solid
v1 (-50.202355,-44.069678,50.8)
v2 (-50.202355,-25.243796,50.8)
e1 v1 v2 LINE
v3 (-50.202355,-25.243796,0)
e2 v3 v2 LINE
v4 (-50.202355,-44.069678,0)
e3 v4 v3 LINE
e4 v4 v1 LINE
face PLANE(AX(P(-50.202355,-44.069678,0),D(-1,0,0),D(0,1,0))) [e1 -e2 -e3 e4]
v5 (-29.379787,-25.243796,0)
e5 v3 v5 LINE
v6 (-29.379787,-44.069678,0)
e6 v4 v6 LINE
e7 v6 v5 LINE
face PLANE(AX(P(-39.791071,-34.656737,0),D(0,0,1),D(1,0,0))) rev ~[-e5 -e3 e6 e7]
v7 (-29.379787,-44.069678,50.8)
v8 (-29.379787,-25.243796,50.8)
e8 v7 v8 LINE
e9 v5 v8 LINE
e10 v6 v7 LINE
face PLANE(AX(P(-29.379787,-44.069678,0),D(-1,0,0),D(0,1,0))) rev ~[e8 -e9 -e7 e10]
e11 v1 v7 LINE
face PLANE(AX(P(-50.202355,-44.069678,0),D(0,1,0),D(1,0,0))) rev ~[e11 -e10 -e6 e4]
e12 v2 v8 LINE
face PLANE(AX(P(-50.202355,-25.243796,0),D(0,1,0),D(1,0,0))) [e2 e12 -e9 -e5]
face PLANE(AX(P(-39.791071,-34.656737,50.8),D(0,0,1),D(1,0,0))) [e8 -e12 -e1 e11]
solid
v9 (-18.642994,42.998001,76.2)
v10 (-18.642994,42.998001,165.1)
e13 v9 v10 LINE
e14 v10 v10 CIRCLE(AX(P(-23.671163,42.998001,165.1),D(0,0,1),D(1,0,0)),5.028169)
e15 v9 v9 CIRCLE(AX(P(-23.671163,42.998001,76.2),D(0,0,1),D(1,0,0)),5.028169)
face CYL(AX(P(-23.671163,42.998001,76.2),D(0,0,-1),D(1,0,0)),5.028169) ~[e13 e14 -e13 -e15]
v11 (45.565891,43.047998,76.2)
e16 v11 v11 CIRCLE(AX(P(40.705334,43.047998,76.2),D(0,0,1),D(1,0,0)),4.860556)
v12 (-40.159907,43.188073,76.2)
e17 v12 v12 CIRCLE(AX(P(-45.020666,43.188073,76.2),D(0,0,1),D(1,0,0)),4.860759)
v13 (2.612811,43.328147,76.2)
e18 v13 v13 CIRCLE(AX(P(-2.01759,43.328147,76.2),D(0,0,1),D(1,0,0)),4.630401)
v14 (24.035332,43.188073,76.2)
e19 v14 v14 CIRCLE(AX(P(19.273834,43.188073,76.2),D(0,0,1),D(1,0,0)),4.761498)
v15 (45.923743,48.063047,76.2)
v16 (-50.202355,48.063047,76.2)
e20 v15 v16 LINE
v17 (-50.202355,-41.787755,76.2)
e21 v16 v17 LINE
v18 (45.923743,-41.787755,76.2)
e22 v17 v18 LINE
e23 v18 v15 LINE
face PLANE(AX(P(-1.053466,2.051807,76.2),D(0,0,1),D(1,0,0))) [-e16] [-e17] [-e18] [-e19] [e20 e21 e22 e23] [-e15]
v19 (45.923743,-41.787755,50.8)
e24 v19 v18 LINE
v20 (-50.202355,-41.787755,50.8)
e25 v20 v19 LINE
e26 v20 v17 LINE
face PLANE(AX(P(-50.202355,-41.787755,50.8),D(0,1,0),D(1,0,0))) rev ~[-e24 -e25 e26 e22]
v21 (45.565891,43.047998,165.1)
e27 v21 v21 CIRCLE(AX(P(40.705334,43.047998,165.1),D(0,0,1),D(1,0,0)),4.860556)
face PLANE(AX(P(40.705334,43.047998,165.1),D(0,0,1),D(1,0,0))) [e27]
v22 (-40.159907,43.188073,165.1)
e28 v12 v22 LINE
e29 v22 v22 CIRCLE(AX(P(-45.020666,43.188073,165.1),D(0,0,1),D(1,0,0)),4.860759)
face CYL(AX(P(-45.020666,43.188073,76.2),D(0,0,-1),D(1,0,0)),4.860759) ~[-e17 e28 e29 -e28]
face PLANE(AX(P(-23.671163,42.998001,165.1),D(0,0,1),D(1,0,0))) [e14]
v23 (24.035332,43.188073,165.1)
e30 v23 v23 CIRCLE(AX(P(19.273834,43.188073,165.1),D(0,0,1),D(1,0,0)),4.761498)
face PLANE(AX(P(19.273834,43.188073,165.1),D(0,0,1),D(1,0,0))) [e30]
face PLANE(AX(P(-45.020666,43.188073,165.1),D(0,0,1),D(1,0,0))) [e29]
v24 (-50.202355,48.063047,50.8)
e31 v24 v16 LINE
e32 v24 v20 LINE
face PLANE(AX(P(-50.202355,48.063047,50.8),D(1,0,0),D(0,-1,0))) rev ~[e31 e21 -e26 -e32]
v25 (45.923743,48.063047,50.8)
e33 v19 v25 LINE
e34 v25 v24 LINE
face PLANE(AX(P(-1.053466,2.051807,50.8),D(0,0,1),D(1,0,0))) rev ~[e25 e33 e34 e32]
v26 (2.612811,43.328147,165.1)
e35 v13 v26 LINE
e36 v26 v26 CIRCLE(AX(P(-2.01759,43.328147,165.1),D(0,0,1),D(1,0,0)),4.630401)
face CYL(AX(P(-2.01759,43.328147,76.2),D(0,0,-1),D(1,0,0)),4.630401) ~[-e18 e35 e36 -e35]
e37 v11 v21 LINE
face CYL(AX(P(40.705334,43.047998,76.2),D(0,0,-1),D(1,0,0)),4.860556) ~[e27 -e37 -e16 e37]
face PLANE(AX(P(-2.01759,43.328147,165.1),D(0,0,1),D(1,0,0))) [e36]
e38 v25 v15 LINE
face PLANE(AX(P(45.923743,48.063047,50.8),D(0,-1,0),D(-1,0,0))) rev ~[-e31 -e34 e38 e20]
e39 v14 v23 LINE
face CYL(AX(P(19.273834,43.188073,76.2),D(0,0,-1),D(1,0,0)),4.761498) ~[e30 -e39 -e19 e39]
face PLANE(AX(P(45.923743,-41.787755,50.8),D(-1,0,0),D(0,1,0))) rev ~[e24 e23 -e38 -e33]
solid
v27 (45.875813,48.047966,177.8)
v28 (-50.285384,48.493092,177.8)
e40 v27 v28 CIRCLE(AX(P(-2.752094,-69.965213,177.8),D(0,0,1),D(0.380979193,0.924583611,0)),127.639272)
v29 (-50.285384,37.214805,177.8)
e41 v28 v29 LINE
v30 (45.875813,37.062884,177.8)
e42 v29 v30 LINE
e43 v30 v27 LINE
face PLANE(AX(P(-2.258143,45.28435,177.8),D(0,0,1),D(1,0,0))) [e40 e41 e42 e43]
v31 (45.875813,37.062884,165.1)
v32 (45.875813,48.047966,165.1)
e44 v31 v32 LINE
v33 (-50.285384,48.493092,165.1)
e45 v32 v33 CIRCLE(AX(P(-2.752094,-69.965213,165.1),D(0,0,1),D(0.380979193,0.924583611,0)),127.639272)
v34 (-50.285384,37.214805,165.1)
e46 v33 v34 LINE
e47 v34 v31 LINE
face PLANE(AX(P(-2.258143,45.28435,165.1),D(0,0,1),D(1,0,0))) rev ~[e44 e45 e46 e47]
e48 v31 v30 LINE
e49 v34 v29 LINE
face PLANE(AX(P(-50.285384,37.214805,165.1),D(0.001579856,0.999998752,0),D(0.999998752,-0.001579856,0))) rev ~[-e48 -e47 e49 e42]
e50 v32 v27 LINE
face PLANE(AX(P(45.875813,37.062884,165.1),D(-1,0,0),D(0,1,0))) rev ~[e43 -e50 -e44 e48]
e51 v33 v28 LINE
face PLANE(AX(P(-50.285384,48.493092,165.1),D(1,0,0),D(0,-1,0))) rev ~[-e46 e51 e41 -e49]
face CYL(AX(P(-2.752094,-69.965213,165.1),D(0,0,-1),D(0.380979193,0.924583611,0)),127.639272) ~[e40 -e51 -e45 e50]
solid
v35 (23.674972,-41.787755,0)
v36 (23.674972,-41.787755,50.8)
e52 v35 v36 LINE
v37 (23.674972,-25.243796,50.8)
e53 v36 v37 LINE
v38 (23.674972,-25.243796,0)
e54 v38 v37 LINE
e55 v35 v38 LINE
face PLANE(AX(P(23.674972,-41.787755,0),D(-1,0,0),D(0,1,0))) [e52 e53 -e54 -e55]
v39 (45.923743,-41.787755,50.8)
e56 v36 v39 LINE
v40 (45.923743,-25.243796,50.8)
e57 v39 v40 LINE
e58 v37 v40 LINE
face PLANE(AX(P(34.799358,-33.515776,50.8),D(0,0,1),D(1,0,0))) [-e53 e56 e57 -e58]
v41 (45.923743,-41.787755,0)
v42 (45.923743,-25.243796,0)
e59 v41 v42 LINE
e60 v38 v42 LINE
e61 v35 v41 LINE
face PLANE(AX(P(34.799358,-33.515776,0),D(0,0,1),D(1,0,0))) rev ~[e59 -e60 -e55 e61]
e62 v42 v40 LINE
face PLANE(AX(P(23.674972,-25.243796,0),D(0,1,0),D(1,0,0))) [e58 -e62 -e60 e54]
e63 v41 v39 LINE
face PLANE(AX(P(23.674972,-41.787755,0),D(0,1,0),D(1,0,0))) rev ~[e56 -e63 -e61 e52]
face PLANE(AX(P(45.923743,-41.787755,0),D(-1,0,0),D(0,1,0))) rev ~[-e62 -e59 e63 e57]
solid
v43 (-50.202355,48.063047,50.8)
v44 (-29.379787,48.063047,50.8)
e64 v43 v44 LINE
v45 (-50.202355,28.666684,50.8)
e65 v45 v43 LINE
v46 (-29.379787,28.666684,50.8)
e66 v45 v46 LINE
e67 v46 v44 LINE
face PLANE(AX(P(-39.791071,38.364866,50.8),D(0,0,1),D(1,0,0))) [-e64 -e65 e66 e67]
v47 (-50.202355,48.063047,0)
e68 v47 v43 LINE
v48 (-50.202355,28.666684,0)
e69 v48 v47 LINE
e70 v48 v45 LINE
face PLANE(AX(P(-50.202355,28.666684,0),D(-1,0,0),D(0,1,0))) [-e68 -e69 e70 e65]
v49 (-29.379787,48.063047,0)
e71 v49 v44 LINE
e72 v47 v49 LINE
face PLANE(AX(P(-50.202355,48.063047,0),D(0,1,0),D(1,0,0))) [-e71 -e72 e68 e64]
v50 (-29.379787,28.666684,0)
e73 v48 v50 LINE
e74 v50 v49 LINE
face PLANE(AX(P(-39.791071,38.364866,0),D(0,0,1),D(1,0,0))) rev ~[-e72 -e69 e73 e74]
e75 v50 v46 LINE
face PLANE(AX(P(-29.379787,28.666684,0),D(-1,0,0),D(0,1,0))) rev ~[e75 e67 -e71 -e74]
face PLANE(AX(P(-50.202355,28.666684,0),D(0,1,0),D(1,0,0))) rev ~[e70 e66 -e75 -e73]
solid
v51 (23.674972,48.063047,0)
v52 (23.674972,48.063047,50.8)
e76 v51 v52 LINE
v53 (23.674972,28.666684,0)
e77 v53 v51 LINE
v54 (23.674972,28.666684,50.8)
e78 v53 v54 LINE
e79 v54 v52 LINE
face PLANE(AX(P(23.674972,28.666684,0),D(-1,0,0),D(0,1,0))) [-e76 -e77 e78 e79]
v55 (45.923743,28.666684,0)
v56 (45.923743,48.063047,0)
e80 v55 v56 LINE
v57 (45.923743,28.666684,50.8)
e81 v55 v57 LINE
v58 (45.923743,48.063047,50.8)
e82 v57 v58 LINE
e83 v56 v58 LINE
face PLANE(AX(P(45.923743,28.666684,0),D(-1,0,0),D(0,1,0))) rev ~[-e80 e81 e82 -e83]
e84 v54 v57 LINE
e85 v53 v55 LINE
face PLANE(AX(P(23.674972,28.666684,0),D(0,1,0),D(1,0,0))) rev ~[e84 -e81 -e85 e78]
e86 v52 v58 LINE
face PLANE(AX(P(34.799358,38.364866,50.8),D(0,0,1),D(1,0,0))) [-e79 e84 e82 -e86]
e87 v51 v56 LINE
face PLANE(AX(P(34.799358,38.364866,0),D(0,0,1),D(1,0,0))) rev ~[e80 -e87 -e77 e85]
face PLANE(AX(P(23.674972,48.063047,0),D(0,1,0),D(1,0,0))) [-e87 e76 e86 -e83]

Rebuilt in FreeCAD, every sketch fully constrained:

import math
import FreeCAD as App
import Part
import Sketcher
from FreeCAD import Vector
Q = App.Units.Quantity


def add_polygon(sketch, points):
    """Adds a closed chain of lines whose ends are joined by coincident constraints."""
    first, n = sketch.GeometryCount, len(points)
    for a, b in zip(points, points[1:] + points[:1]):
        sketch.addGeometry(Part.LineSegment(App.Vector(*a, 0), App.Vector(*b, 0)), False)
    for i in range(n):
        sketch.addConstraint(Sketcher.Constraint("Coincident", first + i, 2, first + (i + 1) % n, 1))

doc = App.newDocument("Part")
body = doc.addObject("PartDesign::Body", "Body")

# Sketch on XY plane
sketch1 = body.newObject("Sketcher::SketchObject", "Sketch")
sketch1.AttachmentSupport = (doc.getObject("XY_Plane"), [""])
sketch1.MapMode = "FlatFace"
add_polygon(sketch1, [(-50, 48), (-50, 29), (-29, 29), (-29, 48)])  # lines 0-3
sketch1.addConstraint([
    Sketcher.Constraint("Vertical", 0),
    Sketcher.Constraint("Horizontal", 1),
    Sketcher.Constraint("Vertical", 2),
    Sketcher.Constraint("Horizontal", 3),
    Sketcher.Constraint("DistanceX", 1, 1, 1, 2, 20.822568),
    Sketcher.Constraint("DistanceY", 0, 2, 0, 1, 19.396363),
    Sketcher.Constraint("DistanceX", 0, 2, -1, 1, 50.202355),
    Sketcher.Constraint("DistanceY", -1, 1, 0, 2, 28.666684),
])
pad1 = body.newObject("PartDesign::Pad", "Pad")
pad1.Profile = sketch1
pad1.Length = Q("2 in")
body2 = doc.addObject("PartDesign::Body", "Body001")

# Sketch on XY plane
sketch2 = body2.newObject("Sketcher::SketchObject", "Sketch001")
sketch2.AttachmentSupport = (doc.getObject("XY_Plane001"), [""])
sketch2.MapMode = "FlatFace"
add_polygon(sketch2, [(24, 48), (24, 29), (46, 29), (46, 48)])  # lines 0-3
sketch2.addConstraint([
    Sketcher.Constraint("Vertical", 0),
    Sketcher.Constraint("Horizontal", 1),
    Sketcher.Constraint("Vertical", 2),
    Sketcher.Constraint("Horizontal", 3),
    Sketcher.Constraint("DistanceX", 1, 1, 1, 2, 22.248771),
    Sketcher.Constraint("DistanceY", 0, 2, 0, 1, 19.396363),
    Sketcher.Constraint("DistanceX", -1, 1, 0, 2, 23.674972),
    Sketcher.Constraint("DistanceY", -1, 1, 0, 2, 28.666684),
])
pad2 = body2.newObject("PartDesign::Pad", "Pad001")
pad2.Profile = sketch2
pad2.Length = Q("2 in")
body3 = doc.addObject("PartDesign::Body", "Body002")

# Sketch on XY plane
sketch3 = body3.newObject("Sketcher::SketchObject", "Sketch002")
sketch3.AttachmentSupport = (doc.getObject("XY_Plane002"), [""])
sketch3.MapMode = "FlatFace"
add_polygon(sketch3, [(24, -25), (24, -42), (46, -42), (46, -25)])  # lines 0-3
sketch3.addConstraint([
    Sketcher.Constraint("Vertical", 0),
    Sketcher.Constraint("Horizontal", 1),
    Sketcher.Constraint("Vertical", 2),
    Sketcher.Constraint("Horizontal", 3),
    Sketcher.Constraint("DistanceX", 1, 1, 1, 2, 22.248771),
    Sketcher.Constraint("DistanceY", 0, 2, 0, 1, 16.543958),
    Sketcher.Constraint("DistanceX", -1, 1, 0, 2, 23.674972),
    Sketcher.Constraint("DistanceY", 0, 2, -1, 1, 41.787755),
])
pad3 = body3.newObject("PartDesign::Pad", "Pad002")
pad3.Profile = sketch3
pad3.Length = Q("2 in")
body4 = doc.addObject("PartDesign::Body", "Body003")

# Sketch on XY plane
sketch4 = body4.newObject("Sketcher::SketchObject", "Sketch003")
sketch4.AttachmentSupport = (doc.getObject("XY_Plane003"), [""])
sketch4.MapMode = "FlatFace"
add_polygon(sketch4, [(-50, -25), (-50, -44), (-29, -44), (-29, -25)])  # lines 0-3
sketch4.addConstraint([
    Sketcher.Constraint("Vertical", 0),
    Sketcher.Constraint("Horizontal", 1),
    Sketcher.Constraint("Vertical", 2),
    Sketcher.Constraint("Horizontal", 3),
    Sketcher.Constraint("DistanceY", 0, 2, 0, 1, 18.825881),
    Sketcher.Constraint("DistanceX", 1, 1, 1, 2, 20.822568),
    Sketcher.Constraint("DistanceX", 0, 2, -1, 1, 50.202355),
    Sketcher.Constraint("DistanceY", 0, 2, -1, 1, 44.069678),
])
pad4 = body4.newObject("PartDesign::Pad", "Pad003")
pad4.Profile = sketch4
pad4.Length = Q("2 in")
body5 = doc.addObject("PartDesign::Body", "Body004")

# Sketch on XY plane
sketch5 = body5.newObject("Sketcher::SketchObject", "Sketch004")
sketch5.AttachmentSupport = (doc.getObject("XY_Plane004"), [""])
sketch5.MapMode = "FlatFace"
sketch5.AttachmentOffset = App.Placement(Vector(0, 0, 2 * 25.4), App.Rotation())
add_polygon(sketch5, [(46, 48), (-50, 48), (-50, -42), (46, -42)])  # lines 0-3
sketch5.addConstraint([
    Sketcher.Constraint("Horizontal", 0),
    Sketcher.Constraint("Vertical", 1),
    Sketcher.Constraint("Horizontal", 2),
    Sketcher.Constraint("Vertical", 3),
    Sketcher.Constraint("DistanceX", 0, 2, 0, 1, 96.126098),
    Sketcher.Constraint("DistanceY", 1, 2, 1, 1, 89.850802),
    Sketcher.Constraint("DistanceX", 0, 2, -1, 1, 50.202355),
    Sketcher.Constraint("DistanceY", -1, 1, 0, 2, 48.063047),
])
pad5 = body5.newObject("PartDesign::Pad", "Pad004")
pad5.Profile = sketch5
pad5.Length = Q("1 in")

# Sketch on XY plane
sketch6 = body5.newObject("Sketcher::SketchObject", "Sketch005")
sketch6.AttachmentSupport = (doc.getObject("XY_Plane004"), [""])
sketch6.MapMode = "FlatFace"
sketch6.AttachmentOffset = App.Placement(Vector(0, 0, 3 * 25.4), App.Rotation())
sketch6.addGeometry([
    Part.Circle(Vector(-45, 43.2, 0), Vector(0, 0, 1), 4.9),  # 0
    Part.Circle(Vector(19.3, 43.2, 0), Vector(0, 0, 1), 4.8),  # 1
    Part.Circle(Vector(40.7, 43, 0), Vector(0, 0, 1), 4.9),  # 2
    Part.Circle(Vector(-2, 43.3, 0), Vector(0, 0, 1), 4.6),  # 3
    Part.Circle(Vector(-23.7, 43, 0), Vector(0, 0, 1), 5),  # 4
], False)
sketch6.addConstraint([
    Sketcher.Constraint("Horizontal", 0, 3, 1, 3),
    Sketcher.Constraint("Diameter", 3, 9.260802),
    Sketcher.Constraint("Diameter", 0, 9.721518),
    Sketcher.Constraint("Diameter", 4, 10.056338),
    Sketcher.Constraint("Diameter", 1, 9.522996),
    Sketcher.Constraint("Diameter", 2, 9.721112),
    Sketcher.Constraint("DistanceY", -1, 1, 2, 3, 43.047998),
    Sketcher.Constraint("DistanceY", -1, 1, 4, 3, 42.998001),
    Sketcher.Constraint("DistanceX", 0, 3, 1, 3, 64.2945),
    Sketcher.Constraint("DistanceX", 1, 3, 2, 3, 21.4315),
    Sketcher.Constraint("DistanceX", 3, 3, -1, 1, 2.01759),
    Sketcher.Constraint("DistanceY", 2, 3, 3, 3, 0.280149),
    Sketcher.Constraint("DistanceY", 4, 3, 0, 3, 0.190072),
    Sketcher.Constraint("DistanceX", 0, 3, -1, 1, 45.020666),
    Sketcher.Constraint("DistanceX", 4, 3, -1, 1, 23.671163),
])
pad6 = body5.newObject("PartDesign::Pad", "Pad005")
pad6.Profile = sketch6
pad6.Length = Q("3.5 in")
body6 = doc.addObject("PartDesign::Body", "Body005")

# Sketch on XY plane
sketch7 = body6.newObject("Sketcher::SketchObject", "Sketch006")
sketch7.AttachmentSupport = (doc.getObject("XY_Plane005"), [""])
sketch7.MapMode = "FlatFace"
sketch7.AttachmentOffset = App.Placement(Vector(0, 0, 6.5 * 25.4), App.Rotation())
sketch7.addGeometry([
    Part.LineSegment(Vector(46, 37, 0), Vector(46, 48, 0)),
    Part.ArcOfCircle(Part.Circle(Vector(-3, -70, 0), Vector(0, 0, 1), 128), math.radians(68), math.radians(112)),
    Part.LineSegment(Vector(-50, 48, 0), Vector(-50, 37, 0)),
    Part.LineSegment(Vector(-50, 37, 0), Vector(46, 37, 0)),
], False)
sketch7.addConstraint([
    Sketcher.Constraint("Coincident", 0, 2, 1, 1),
    Sketcher.Constraint("Coincident", 1, 2, 2, 1),
    Sketcher.Constraint("Coincident", 2, 2, 3, 1),
    Sketcher.Constraint("Coincident", 3, 2, 0, 1),
    Sketcher.Constraint("Vertical", 0),
    Sketcher.Constraint("Vertical", 2),
    Sketcher.Constraint("Radius", 1, 127.639272),
    Sketcher.Constraint("DistanceY", 0, 1, 0, 2, 10.985082),
    Sketcher.Constraint("DistanceY", 2, 2, 2, 1, 11.278287),
    Sketcher.Constraint("DistanceY", 1, 3, 0, 2, 118.013179),
    Sketcher.Constraint("DistanceX", 1, 2, 1, 3, 47.53329),
    Sketcher.Constraint("DistanceX", 1, 3, -1, 1, 2.752094),
    Sketcher.Constraint("DistanceY", 1, 3, -1, 1, 69.965213),
])
pad7 = body6.newObject("PartDesign::Pad", "Pad006")
pad7.Profile = sketch7
pad7.Length = Q("0.5 in")

doc.recompute()
